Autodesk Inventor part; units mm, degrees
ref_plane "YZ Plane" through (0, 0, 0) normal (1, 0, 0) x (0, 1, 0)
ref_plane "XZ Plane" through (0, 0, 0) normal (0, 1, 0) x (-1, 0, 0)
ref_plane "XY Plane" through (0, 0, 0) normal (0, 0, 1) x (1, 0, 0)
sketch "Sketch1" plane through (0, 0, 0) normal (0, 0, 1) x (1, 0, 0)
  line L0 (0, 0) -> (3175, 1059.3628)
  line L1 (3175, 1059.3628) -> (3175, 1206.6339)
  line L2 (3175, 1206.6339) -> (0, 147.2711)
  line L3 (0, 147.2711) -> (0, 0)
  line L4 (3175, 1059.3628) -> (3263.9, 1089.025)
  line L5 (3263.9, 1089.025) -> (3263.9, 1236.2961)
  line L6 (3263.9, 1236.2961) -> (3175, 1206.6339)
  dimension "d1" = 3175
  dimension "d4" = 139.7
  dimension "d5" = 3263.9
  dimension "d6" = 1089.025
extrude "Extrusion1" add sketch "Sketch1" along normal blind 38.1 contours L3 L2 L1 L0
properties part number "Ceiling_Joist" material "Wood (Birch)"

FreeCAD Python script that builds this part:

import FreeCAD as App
import Part
import Sketcher

V = App.Vector
Q = App.Units.Quantity

doc = App.newDocument("Part")
body = doc.addObject("PartDesign::Body", "Body")

sketch1 = doc.addObject("Sketcher::SketchObject", "Sketch")
body.addObject(sketch1)
sketch1.AttachmentSupport = (doc.XY_Plane, [""])
sketch1.MapMode = "FlatFace"
sketch1.addGeometry([
    Part.LineSegment(V(0, 147, 0), V(0, 0, 0)),
    Part.LineSegment(V(0, 0, 0), V(3175, 1059, 0)),
    Part.LineSegment(V(3175, 1059, 0), V(3175, 1207, 0)),
    Part.LineSegment(V(3175, 1207, 0), V(0, 147, 0)),
], False)
sketch1.addConstraint([
    Sketcher.Constraint("Coincident", 0, 2, 1, 1),
    Sketcher.Constraint("Coincident", 1, 2, 2, 1),
    Sketcher.Constraint("Coincident", 2, 2, 3, 1),
    Sketcher.Constraint("Coincident", 3, 2, 0, 1),
    Sketcher.Constraint("Vertical", 0),
    Sketcher.Constraint("Vertical", 2),
    Sketcher.Constraint("Coincident", 0, 2, -1, 1),
    Sketcher.Constraint("Parallel", 1, 3),
    Sketcher.Constraint("DistanceX", -1, 1, 1, 2, Q("125 in")),
    Sketcher.Constraint("Distance", 1, Q("131.7744 in")),
    Sketcher.Constraint("DistanceY", 0, 2, 0, 1, 147.271),
])
pad1 = doc.addObject("PartDesign::Pad", "Pad")
body.addObject(pad1)
pad1.Profile = sketch1
pad1.Length = Q("1.5 in")

doc.recompute()
